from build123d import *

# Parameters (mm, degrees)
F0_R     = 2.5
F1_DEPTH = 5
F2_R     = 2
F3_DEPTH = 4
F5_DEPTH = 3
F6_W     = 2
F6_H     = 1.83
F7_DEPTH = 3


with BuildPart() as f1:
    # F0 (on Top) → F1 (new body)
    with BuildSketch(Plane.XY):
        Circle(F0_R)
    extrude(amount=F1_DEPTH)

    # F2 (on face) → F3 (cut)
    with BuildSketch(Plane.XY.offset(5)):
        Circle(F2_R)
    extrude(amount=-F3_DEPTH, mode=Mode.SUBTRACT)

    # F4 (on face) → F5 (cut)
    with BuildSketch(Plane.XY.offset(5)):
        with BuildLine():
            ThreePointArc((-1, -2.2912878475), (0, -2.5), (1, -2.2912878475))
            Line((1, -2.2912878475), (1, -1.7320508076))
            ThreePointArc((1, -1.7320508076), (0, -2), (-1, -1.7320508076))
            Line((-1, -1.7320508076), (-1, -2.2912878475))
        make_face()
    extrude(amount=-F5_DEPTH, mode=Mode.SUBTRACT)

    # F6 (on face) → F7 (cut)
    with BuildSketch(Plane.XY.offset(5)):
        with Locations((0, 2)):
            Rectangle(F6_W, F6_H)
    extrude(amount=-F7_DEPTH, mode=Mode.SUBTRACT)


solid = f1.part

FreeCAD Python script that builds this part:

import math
import FreeCAD as App
import Part
import Sketcher
from FreeCAD import Vector
Q = App.Units.Quantity


def add_polygon(sketch, points):
    """Adds a closed chain of lines whose ends are joined by coincident constraints."""
    first, n = sketch.GeometryCount, len(points)
    for a, b in zip(points, points[1:] + points[:1]):
        sketch.addGeometry(Part.LineSegment(App.Vector(*a, 0), App.Vector(*b, 0)), False)
    for i in range(n):
        sketch.addConstraint(Sketcher.Constraint("Coincident", first + i, 2, first + (i + 1) % n, 1))

doc = App.newDocument("Part")
body = doc.addObject("PartDesign::Body", "Body")

# Sketch on XY plane
sketch1 = body.newObject("Sketcher::SketchObject", "Sketch")
sketch1.AttachmentSupport = (doc.getObject("XY_Plane"), [""])
sketch1.MapMode = "FlatFace"
sketch1.addGeometry(Part.Circle(Vector(0, 0, 0), Vector(0, 0, 1), 2.5), False)
sketch1.addConstraint([
    Sketcher.Constraint("Coincident", 0, 3, -1, 1),
    Sketcher.Constraint("Diameter", 0, Q("5 mm")),
])
pad1 = body.newObject("PartDesign::Pad", "Pad")
pad1.Profile = sketch1
pad1.Length = 5

# Sketch on XY plane
sketch2 = body.newObject("Sketcher::SketchObject", "Sketch001")
sketch2.AttachmentSupport = (doc.getObject("XY_Plane"), [""])
sketch2.MapMode = "FlatFace"
sketch2.AttachmentOffset = App.Placement(Vector(0, 0, 5), App.Rotation())
sketch2.addGeometry(Part.Circle(Vector(0, 0, 0), Vector(0, 0, 1), 2), False)
sketch2.addConstraint([
    Sketcher.Constraint("Coincident", 0, 3, -1, 1),
    Sketcher.Constraint("Diameter", 0, Q("4 mm")),
])
pocket1 = body.newObject("PartDesign::Pocket", "Pocket")
pocket1.Profile = sketch2
pocket1.Length = 4

# Sketch on XY plane
sketch3 = body.newObject("Sketcher::SketchObject", "Sketch002")
sketch3.AttachmentSupport = (doc.getObject("XY_Plane"), [""])
sketch3.MapMode = "FlatFace"
sketch3.AttachmentOffset = App.Placement(Vector(0, 0, 5), App.Rotation())
sketch3.addGeometry([
    Part.ArcOfCircle(Part.Circle(Vector(0, 0, 0), Vector(0, 0, 1), 2.5), math.radians(-114), math.radians(-66)),
    Part.LineSegment(Vector(1, -2.3, 0), Vector(1, -1.7, 0)),
    Part.ArcOfCircle(Part.Circle(Vector(0, 0, 0), Vector(0, 0, 1), 2), math.radians(-120), math.radians(-60)),
    Part.LineSegment(Vector(-1, -1.7, 0), Vector(-1, -2.3, 0)),
], False)
sketch3.addConstraint([
    Sketcher.Constraint("Coincident", 0, 2, 1, 1),
    Sketcher.Constraint("Coincident", 1, 2, 2, 2),
    Sketcher.Constraint("Coincident", 2, 1, 3, 1),
    Sketcher.Constraint("Coincident", 3, 2, 0, 1),
    Sketcher.Constraint("Vertical", 1),
    Sketcher.Constraint("Vertical", 3),
    Sketcher.Constraint("Coincident", 0, 3, -1, 1),
    Sketcher.Constraint("Coincident", 2, 3, -1, 1),
    Sketcher.Constraint("Horizontal", 1, 2, 2, 1),
    Sketcher.Constraint("Radius", 2, Q("2 mm")),
    Sketcher.Constraint("Radius", 0, Q("2.5 mm")),
    Sketcher.Constraint("DistanceX", -1, 1, 0, 2, Q("1 mm")),
])
pocket2 = body.newObject("PartDesign::Pocket", "Pocket001")
pocket2.Profile = sketch3
pocket2.Length = 3

# Sketch on XY plane
sketch4 = body.newObject("Sketcher::SketchObject", "Sketch003")
sketch4.AttachmentSupport = (doc.getObject("XY_Plane"), [""])
sketch4.MapMode = "FlatFace"
sketch4.AttachmentOffset = App.Placement(Vector(0, 0, 5), App.Rotation())
add_polygon(sketch4, [(-1, 2.9), (-1, 1.1), (1, 1.1), (1, 2.9)])  # lines 0-3
sketch4.addConstraint([
    Sketcher.Constraint("Vertical", 0),
    Sketcher.Constraint("Horizontal", 1),
    Sketcher.Constraint("Vertical", 2),
    Sketcher.Constraint("Horizontal", 3),
    Sketcher.Constraint("DistanceX", 1, 1, 1, 2, Q("2 mm")),
    Sketcher.Constraint("DistanceX", 0, 2, -1, 1, Q("1 mm")),
    Sketcher.Constraint("DistanceY", 0, 2, 0, 1, Q("1.83 mm")),
    Sketcher.Constraint("DistanceY", -1, 1, 0, 2, Q("1.085 mm")),
])
pocket3 = body.newObject("PartDesign::Pocket", "Pocket002")
pocket3.Profile = sketch4
pocket3.Length = 3

doc.recompute()
